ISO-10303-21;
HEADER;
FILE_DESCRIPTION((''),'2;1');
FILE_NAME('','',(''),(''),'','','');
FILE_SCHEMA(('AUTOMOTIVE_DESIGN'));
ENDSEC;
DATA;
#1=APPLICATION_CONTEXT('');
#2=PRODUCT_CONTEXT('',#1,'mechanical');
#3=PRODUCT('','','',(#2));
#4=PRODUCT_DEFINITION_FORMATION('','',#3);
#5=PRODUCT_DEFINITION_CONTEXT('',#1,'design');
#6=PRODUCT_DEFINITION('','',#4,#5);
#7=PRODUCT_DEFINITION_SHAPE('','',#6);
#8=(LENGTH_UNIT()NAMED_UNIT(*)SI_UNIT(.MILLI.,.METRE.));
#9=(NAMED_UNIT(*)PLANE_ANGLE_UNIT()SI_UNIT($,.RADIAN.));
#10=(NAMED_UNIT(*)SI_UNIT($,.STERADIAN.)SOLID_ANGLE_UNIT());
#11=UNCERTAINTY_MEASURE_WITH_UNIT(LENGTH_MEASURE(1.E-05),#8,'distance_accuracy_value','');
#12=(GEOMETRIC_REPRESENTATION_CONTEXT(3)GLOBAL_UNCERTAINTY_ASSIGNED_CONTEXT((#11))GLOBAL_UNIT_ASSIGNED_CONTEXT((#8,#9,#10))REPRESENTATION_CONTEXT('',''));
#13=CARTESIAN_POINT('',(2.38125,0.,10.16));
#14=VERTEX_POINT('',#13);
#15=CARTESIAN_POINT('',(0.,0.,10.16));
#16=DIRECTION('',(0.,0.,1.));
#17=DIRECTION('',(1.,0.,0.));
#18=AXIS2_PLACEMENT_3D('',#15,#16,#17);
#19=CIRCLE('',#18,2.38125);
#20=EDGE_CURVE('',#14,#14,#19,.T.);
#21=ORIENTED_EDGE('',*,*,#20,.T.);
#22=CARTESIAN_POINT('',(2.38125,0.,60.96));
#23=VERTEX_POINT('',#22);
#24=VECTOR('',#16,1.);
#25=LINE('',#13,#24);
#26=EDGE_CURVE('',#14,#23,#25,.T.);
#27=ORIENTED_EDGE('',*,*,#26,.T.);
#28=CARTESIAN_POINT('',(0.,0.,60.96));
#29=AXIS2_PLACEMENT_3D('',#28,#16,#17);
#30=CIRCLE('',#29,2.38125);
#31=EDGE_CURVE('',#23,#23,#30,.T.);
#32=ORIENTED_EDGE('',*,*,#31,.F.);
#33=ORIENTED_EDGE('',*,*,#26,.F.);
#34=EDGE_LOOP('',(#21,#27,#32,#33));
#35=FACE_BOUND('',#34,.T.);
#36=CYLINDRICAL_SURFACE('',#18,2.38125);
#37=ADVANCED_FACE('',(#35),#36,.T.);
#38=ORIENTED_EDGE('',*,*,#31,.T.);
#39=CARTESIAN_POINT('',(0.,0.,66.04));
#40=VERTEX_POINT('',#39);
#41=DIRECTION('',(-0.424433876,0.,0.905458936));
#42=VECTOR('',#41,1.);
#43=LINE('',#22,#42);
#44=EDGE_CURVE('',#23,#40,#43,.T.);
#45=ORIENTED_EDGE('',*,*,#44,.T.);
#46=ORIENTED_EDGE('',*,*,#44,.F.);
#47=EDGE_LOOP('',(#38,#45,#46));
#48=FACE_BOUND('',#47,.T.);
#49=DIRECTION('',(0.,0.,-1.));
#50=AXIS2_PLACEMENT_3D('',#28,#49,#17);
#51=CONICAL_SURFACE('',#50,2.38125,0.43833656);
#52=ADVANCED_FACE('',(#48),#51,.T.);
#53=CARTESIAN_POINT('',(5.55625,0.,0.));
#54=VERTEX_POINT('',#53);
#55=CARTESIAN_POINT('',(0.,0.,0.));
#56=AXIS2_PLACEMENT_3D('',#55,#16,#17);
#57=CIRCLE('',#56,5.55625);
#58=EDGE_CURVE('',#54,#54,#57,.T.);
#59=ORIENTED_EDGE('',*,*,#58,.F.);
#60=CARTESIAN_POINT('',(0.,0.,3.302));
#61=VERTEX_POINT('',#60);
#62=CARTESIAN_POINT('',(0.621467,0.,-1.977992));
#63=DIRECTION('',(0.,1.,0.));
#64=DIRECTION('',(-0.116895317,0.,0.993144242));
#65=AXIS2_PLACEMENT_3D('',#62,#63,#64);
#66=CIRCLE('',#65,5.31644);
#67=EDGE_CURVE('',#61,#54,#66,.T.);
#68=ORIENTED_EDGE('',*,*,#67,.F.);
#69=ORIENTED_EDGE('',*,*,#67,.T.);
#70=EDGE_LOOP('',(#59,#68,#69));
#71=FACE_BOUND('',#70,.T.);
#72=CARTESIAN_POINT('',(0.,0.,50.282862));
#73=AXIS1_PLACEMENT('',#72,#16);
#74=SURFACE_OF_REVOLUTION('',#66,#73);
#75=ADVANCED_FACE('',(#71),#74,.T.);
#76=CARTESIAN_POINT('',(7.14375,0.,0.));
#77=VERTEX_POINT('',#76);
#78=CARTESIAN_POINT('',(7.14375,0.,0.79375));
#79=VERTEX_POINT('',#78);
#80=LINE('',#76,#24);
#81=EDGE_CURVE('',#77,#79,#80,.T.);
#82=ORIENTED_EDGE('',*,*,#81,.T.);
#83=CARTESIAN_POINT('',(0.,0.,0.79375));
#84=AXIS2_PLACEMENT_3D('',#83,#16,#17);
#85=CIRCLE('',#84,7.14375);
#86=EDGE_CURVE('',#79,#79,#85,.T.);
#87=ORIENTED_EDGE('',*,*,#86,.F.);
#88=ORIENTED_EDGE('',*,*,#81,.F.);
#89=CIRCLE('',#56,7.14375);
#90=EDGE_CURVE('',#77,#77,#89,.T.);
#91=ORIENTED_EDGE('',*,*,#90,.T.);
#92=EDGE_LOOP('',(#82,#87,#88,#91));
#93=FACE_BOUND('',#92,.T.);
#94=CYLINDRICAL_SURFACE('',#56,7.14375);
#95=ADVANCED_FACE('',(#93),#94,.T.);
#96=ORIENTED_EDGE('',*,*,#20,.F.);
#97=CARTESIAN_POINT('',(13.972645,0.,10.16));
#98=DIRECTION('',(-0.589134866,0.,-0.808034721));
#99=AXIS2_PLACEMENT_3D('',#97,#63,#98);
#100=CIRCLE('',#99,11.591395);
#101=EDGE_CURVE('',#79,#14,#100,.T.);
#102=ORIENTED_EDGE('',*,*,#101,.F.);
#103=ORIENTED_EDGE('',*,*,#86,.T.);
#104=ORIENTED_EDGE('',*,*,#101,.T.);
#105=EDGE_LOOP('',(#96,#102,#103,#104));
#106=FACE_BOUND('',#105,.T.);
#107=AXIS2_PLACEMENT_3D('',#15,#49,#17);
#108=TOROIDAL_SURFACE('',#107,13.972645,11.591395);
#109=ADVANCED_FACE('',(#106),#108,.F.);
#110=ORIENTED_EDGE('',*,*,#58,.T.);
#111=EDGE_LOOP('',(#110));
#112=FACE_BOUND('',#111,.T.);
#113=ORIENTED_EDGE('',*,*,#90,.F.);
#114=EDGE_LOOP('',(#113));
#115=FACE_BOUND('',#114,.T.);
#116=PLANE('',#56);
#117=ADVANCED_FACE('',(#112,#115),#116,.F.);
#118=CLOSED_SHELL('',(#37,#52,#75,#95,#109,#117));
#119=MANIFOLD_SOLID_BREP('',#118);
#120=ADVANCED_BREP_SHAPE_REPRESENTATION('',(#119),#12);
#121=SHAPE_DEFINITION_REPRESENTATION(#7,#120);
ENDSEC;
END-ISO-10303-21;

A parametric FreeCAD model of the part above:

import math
import FreeCAD as App
import Part
import Sketcher
from FreeCAD import Vector
Q = App.Units.Quantity

doc = App.newDocument("Part")
body = doc.addObject("PartDesign::Body", "Body")

sketch1 = body.newObject("Sketcher::SketchObject", "Sketch")
sketch1.AttachmentSupport = (doc.getObject("XZ_Plane"), [""])
sketch1.MapMode = "FlatFace"
sketch1.addGeometry(Part.ArcOfCircle(Part.Circle(Vector(0.6, -2, 0), Vector(0, 0, 1), 5.3), math.radians(22), math.radians(97)), False)
sketch1.addGeometry(Part.LineSegment(Vector(5.6, 0, 0), Vector(7.1, 0, 0)), False)
sketch1.addGeometry(Part.LineSegment(Vector(7.1, 0, 0), Vector(7.1, 0.8, 0)), False)
sketch1.addGeometry(Part.ArcOfCircle(Part.Circle(Vector(14, 10.2, 0), Vector(0, 0, 1), 11.6), math.radians(180), math.radians(234)), False)
sketch1.addGeometry(Part.LineSegment(Vector(2.4, 10.2, 0), Vector(2.4, 61, 0)), False)
sketch1.addGeometry(Part.LineSegment(Vector(2.4, 61, 0), Vector(0, 66, 0)), False)
sketch1.addGeometry(Part.LineSegment(Vector(0, 66, 0), Vector(0, 3.3, 0)), False)
sketch1.addConstraint(Sketcher.Constraint("Coincident", 0, 1, 1, 1))
sketch1.addConstraint(Sketcher.Constraint("Coincident", 1, 2, 2, 1))
sketch1.addConstraint(Sketcher.Constraint("Coincident", 2, 2, 3, 2))
sketch1.addConstraint(Sketcher.Constraint("Tangent", 3, 1, 4, 1))
sketch1.addConstraint(Sketcher.Constraint("Coincident", 4, 2, 5, 1))
sketch1.addConstraint(Sketcher.Constraint("Coincident", 5, 2, 6, 1))
sketch1.addConstraint(Sketcher.Constraint("Coincident", 6, 2, 0, 2))
sketch1.addConstraint(Sketcher.Constraint("Horizontal", 1))
sketch1.addConstraint(Sketcher.Constraint("Vertical", 2))
sketch1.addConstraint(Sketcher.Constraint("Vertical", 4))
sketch1.addConstraint(Sketcher.Constraint("Vertical", 6))
sketch1.addConstraint(Sketcher.Constraint("PointOnObject", 0, 1, -1))
sketch1.addConstraint(Sketcher.Constraint("PointOnObject", 5, 2, -2))
sketch1.addConstraint(Sketcher.Constraint("DistanceY", 4, 1, 4, 2, Q("2 in")))
sketch1.addConstraint(Sketcher.Constraint("DistanceY", 6, 2, 6, 1, Q("2.47 in")))
sketch1.addConstraint(Sketcher.Constraint("DistanceY", -1, 1, 3, 3, Q("0.4 in")))
sketch1.addConstraint(Sketcher.Constraint("DistanceY", -1, 1, 5, 2, Q("2.6 in")))
sketch1.addConstraint(Sketcher.Constraint("DistanceX", 1, 1, 1, 2, Q("0.0625 in")))
sketch1.addConstraint(Sketcher.Constraint("DistanceY", 2, 1, 2, 2, Q("0.03125 in")))
sketch1.addConstraint(Sketcher.Constraint("DistanceX", -1, 1, 0, 1, Q("0.21875 in")))
sketch1.addConstraint(Sketcher.Constraint("DistanceX", -1, 1, 3, 1, Q("0.09375 in")))
sketch1.addConstraint(Sketcher.Constraint("Radius", 0, Q("5.31644 mm")))
revolution = body.newObject("PartDesign::Revolution", "Revolution")
revolution.Profile = sketch1
revolution.ReferenceAxis = (sketch1, ["V_Axis"])
revolution.Angle = 360

doc.recompute()
